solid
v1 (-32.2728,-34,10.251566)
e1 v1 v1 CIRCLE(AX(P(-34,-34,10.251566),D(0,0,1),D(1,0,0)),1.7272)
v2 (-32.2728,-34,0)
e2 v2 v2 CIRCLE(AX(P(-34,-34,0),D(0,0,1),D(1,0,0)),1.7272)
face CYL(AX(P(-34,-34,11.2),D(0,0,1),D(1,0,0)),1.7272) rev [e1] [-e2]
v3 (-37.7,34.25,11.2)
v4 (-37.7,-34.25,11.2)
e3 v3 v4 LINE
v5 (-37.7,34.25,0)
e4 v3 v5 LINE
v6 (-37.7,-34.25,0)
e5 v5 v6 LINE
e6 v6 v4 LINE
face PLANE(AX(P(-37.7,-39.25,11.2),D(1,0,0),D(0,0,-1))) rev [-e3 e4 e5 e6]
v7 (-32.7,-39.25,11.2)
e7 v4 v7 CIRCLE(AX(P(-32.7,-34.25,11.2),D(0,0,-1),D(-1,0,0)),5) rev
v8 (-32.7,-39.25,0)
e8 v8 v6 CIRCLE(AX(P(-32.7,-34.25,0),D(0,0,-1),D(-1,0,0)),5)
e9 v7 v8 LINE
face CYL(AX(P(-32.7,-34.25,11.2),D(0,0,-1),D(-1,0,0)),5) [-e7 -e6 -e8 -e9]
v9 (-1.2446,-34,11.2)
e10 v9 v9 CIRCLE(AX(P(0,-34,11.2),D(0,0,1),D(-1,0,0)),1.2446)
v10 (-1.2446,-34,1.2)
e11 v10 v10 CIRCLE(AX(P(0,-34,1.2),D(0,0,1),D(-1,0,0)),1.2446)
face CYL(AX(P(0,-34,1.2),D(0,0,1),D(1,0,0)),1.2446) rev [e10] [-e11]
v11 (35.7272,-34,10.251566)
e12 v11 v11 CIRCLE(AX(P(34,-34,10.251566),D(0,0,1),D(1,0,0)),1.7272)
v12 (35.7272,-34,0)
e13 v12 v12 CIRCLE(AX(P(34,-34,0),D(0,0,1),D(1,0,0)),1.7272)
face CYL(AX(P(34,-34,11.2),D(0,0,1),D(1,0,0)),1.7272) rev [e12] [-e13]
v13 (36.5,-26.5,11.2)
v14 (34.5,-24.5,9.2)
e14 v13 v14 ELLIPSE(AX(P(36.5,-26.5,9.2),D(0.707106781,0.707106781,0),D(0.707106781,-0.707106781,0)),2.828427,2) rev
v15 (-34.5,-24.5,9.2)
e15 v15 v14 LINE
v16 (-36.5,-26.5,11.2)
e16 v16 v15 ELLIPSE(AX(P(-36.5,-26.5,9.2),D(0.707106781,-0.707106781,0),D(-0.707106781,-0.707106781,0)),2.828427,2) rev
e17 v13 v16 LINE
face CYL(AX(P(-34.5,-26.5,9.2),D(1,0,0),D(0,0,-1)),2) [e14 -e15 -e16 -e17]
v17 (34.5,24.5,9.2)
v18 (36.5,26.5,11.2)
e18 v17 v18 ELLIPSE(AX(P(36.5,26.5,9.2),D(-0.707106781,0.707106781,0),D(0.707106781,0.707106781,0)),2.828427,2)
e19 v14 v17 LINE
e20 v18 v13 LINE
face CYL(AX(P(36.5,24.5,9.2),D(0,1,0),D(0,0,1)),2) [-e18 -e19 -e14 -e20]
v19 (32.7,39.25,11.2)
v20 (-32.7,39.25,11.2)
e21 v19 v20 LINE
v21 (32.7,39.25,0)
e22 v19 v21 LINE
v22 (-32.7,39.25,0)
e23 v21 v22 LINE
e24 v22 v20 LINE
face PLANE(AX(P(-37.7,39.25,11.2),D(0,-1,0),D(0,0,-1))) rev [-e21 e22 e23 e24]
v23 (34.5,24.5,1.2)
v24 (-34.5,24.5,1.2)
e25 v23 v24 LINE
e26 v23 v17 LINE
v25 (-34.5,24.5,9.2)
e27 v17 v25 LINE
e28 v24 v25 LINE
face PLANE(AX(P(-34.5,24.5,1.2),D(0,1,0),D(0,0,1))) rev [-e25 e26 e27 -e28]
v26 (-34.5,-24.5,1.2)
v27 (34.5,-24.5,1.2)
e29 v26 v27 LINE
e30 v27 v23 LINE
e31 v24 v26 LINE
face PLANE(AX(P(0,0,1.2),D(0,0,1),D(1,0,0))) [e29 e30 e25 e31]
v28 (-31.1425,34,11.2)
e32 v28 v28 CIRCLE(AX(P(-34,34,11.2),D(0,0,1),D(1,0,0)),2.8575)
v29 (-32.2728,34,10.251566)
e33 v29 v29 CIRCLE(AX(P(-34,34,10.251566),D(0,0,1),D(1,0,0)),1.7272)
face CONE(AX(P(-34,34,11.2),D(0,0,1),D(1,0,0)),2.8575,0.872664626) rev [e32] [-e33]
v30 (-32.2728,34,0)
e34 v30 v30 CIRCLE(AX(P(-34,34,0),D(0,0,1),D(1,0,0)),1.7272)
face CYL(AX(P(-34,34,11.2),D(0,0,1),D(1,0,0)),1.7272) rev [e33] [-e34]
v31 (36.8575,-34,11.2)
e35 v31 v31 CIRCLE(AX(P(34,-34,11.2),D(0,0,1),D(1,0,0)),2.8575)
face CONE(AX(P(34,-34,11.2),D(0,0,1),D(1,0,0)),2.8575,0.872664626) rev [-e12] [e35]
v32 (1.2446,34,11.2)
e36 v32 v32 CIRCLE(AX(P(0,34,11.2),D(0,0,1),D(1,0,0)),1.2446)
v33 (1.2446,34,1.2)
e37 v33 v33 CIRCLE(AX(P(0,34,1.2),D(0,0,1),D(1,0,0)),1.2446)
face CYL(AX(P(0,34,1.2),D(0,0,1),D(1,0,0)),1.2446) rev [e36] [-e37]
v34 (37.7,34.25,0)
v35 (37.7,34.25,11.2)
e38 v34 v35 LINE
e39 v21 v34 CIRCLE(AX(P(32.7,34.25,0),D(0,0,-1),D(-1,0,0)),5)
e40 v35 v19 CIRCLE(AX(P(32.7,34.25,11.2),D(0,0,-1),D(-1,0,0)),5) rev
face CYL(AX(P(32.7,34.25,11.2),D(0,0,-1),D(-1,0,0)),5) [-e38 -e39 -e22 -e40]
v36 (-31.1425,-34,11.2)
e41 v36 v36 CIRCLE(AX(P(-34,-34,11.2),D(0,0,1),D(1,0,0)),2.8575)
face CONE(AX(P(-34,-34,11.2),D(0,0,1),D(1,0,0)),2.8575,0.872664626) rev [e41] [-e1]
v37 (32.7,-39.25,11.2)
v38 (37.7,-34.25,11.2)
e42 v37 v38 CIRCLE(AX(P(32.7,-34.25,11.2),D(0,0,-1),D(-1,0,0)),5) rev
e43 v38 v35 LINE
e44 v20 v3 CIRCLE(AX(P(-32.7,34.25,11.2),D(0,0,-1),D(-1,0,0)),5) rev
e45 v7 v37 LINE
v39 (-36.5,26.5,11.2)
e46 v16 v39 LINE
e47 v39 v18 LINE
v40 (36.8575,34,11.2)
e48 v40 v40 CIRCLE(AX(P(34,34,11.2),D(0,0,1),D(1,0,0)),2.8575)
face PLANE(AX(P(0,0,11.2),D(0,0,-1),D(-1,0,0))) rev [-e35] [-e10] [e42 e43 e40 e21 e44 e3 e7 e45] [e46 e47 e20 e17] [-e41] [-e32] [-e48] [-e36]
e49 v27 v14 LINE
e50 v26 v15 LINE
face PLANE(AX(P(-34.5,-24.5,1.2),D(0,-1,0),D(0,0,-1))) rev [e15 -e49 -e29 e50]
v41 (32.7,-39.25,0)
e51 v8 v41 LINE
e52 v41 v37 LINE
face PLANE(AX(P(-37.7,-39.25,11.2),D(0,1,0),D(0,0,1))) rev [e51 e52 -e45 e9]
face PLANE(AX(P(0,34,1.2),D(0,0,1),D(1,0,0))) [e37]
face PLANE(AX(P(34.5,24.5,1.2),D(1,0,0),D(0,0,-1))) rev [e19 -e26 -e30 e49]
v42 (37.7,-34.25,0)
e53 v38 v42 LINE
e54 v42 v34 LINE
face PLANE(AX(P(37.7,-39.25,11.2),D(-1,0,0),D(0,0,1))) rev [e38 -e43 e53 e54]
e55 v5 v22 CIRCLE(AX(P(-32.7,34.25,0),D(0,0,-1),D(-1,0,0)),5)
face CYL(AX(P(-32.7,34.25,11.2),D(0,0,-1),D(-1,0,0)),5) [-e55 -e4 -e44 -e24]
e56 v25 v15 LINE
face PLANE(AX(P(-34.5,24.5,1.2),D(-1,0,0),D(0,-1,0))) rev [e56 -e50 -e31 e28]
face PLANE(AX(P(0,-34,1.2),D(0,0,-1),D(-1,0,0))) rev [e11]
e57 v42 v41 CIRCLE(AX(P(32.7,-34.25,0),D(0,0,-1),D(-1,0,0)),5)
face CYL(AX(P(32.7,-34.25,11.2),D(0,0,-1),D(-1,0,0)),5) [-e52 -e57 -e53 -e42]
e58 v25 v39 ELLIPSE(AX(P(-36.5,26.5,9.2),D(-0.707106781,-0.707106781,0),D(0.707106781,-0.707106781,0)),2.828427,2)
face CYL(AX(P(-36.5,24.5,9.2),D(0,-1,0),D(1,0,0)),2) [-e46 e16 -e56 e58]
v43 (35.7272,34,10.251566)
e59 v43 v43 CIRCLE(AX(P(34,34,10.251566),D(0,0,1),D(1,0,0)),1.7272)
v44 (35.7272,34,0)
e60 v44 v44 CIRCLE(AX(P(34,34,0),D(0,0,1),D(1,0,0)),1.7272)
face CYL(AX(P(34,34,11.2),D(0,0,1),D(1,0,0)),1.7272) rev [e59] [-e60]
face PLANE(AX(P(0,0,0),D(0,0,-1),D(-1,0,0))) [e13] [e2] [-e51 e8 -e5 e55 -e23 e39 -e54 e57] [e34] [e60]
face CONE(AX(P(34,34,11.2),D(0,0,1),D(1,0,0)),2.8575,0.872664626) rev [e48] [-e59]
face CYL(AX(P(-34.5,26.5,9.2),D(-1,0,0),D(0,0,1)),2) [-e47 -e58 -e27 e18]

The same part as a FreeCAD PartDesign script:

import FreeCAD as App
import Part
import Sketcher
from FreeCAD import Vector


def edges_at(feature, points):
    """Names of the edges that pass closest to the given points."""
    edges = feature.Shape.Edges
    near = lambda p: min(range(len(edges)), key=lambda i: edges[i].distToShape(Part.Vertex(*p))[0])
    return sorted({f"Edge{near(p) + 1}" for p in points})


def add_polygon(sketch, points):
    """Adds a closed chain of lines whose ends are joined by coincident constraints."""
    first, n = sketch.GeometryCount, len(points)
    for a, b in zip(points, points[1:] + points[:1]):
        sketch.addGeometry(Part.LineSegment(App.Vector(*a, 0), App.Vector(*b, 0)), False)
    for i in range(n):
        sketch.addConstraint(Sketcher.Constraint("Coincident", first + i, 2, first + (i + 1) % n, 1))

doc = App.newDocument("Part")
body = doc.addObject("PartDesign::Body", "Body")

# Sketch on XY plane
sketch1 = body.newObject("Sketcher::SketchObject", "Sketch")
sketch1.AttachmentSupport = (doc.getObject("XY_Plane"), [""])
sketch1.MapMode = "FlatFace"
add_polygon(sketch1, [(-38, 39), (-38, -39), (38, -39), (38, 39)])  # lines 0-3
sketch1.addConstraint([
    Sketcher.Constraint("Vertical", 0),
    Sketcher.Constraint("Horizontal", 1),
    Sketcher.Constraint("Vertical", 2),
    Sketcher.Constraint("Horizontal", 3),
    Sketcher.Constraint("Symmetric", 0, 2, 2, 2, -1, 1),
    Sketcher.Constraint("DistanceX", 1, 1, 1, 2, 75.4),
    Sketcher.Constraint("DistanceY", 0, 2, 0, 1, 78.5),
])
pad1 = body.newObject("PartDesign::Pad", "Pad")
pad1.Profile = sketch1
pad1.Length = 11.2

# Sketch on XY plane
sketch2 = body.newObject("Sketcher::SketchObject", "Sketch001")
sketch2.AttachmentSupport = (doc.getObject("XY_Plane"), [""])
sketch2.MapMode = "FlatFace"
sketch2.AttachmentOffset = App.Placement(Vector(0, 0, 11.2), App.Rotation())
add_polygon(sketch2, [(-34, 24), (-34, -24), (34, -24), (34, 24)])  # lines 0-3
sketch2.addConstraint([
    Sketcher.Constraint("Vertical", 0),
    Sketcher.Constraint("Horizontal", 1),
    Sketcher.Constraint("Vertical", 2),
    Sketcher.Constraint("Horizontal", 3),
    Sketcher.Constraint("Symmetric", 0, 2, 2, 2, -1, 1),
    Sketcher.Constraint("DistanceX", 1, 1, 1, 2, 69.0),
    Sketcher.Constraint("DistanceY", 0, 2, 0, 1, 49.0),
])
pocket1 = body.newObject("PartDesign::Pocket", "Pocket")
pocket1.Profile = sketch2
pocket1.Length = 10
doc.recompute()

fillet = body.newObject("PartDesign::Fillet", "Fillet")
fillet.Base = (pocket1, edges_at(pocket1, [
    (34.5, 0, 11.2),
    (0, 24.5, 11.2),
    (-34.5, 0, 11.2),
    (0, -24.5, 11.2),
]))
fillet.Radius = 2

# Sketch on XY plane
sketch3 = body.newObject("Sketcher::SketchObject", "Sketch002")
sketch3.AttachmentSupport = (doc.getObject("XY_Plane"), [""])
sketch3.MapMode = "FlatFace"
sketch3.AttachmentOffset = App.Placement(Vector(0, 0, 11.2), App.Rotation())
sketch3.addGeometry([
    Part.Circle(Vector(0, 34, 0), Vector(0, 0, 1), 1.2),
    Part.Circle(Vector(0, -34, 0), Vector(0, 0, 1), 1.2),
], False)
sketch3.addConstraint([
    Sketcher.Constraint("Equal", 0, 1),
    Sketcher.Constraint("Symmetric", 0, 3, 1, 3, -1, 1),
    Sketcher.Constraint("PointOnObject", 0, 3, -2),
    Sketcher.Constraint("DistanceY", -1, 1, 0, 3, 34.0),
    Sketcher.Constraint("Diameter", 0, 2.4892),
])
pocket2 = body.newObject("PartDesign::Pocket", "Pocket001")
pocket2.Profile = sketch3
pocket2.Length = 10
doc.recompute()

fillet2 = body.newObject("PartDesign::Fillet", "Fillet001")
fillet2.Base = (pocket2, edges_at(pocket2, [
    (37.7, -39.25, 5.6),
    (-37.7, -39.25, 5.6),
    (-37.7, 39.25, 5.6),
    (37.7, 39.25, 5.6),
]))
fillet2.Radius = 5

# Sketch on XY plane
sketch4 = body.newObject("Sketcher::SketchObject", "Sketch003")
sketch4.AttachmentSupport = (doc.getObject("XY_Plane"), [""])
sketch4.MapMode = "FlatFace"
sketch4.AttachmentOffset = App.Placement(Vector(0, 0, 11.2), App.Rotation())
sketch4.addGeometry([
    Part.Circle(Vector(34, -34, 0), Vector(0, 0, 1), 1.7),
    Part.Circle(Vector(-34, -34, 0), Vector(0, 0, 1), 1.7),
    Part.Circle(Vector(-34, 34, 0), Vector(0, 0, 1), 1.7),
    Part.Circle(Vector(34, 34, 0), Vector(0, 0, 1), 1.7),
], False)
sketch4.addConstraint([
    Sketcher.Constraint("Equal", 0, 1),
    Sketcher.Constraint("Equal", 1, 2),
    Sketcher.Constraint("Equal", 2, 3),
    Sketcher.Constraint("Symmetric", 0, 3, 2, 3, -1, 1),
    Sketcher.Constraint("Symmetric", 1, 3, 3, 3, -1, 1),
    Sketcher.Constraint("Symmetric", 0, 3, 1, 3, -2),
    Sketcher.Constraint("DistanceX", -1, 1, 0, 3, 34.0),
    Sketcher.Constraint("DistanceY", 0, 3, -1, 1, 34.0),
    Sketcher.Constraint("Diameter", 0, 3.4544),
])
doc.recompute()
hole = body.newObject("PartDesign::Hole", "Hole")
hole.Profile = sketch4
hole.ThreadType = "None"
hole.Diameter = 3.4544
hole.DepthType = "ThroughAll"
hole.HoleCutType = "Countersink"
hole.HoleCutDiameter = 5.715
hole.HoleCutCountersinkAngle = 100

doc.recompute()
